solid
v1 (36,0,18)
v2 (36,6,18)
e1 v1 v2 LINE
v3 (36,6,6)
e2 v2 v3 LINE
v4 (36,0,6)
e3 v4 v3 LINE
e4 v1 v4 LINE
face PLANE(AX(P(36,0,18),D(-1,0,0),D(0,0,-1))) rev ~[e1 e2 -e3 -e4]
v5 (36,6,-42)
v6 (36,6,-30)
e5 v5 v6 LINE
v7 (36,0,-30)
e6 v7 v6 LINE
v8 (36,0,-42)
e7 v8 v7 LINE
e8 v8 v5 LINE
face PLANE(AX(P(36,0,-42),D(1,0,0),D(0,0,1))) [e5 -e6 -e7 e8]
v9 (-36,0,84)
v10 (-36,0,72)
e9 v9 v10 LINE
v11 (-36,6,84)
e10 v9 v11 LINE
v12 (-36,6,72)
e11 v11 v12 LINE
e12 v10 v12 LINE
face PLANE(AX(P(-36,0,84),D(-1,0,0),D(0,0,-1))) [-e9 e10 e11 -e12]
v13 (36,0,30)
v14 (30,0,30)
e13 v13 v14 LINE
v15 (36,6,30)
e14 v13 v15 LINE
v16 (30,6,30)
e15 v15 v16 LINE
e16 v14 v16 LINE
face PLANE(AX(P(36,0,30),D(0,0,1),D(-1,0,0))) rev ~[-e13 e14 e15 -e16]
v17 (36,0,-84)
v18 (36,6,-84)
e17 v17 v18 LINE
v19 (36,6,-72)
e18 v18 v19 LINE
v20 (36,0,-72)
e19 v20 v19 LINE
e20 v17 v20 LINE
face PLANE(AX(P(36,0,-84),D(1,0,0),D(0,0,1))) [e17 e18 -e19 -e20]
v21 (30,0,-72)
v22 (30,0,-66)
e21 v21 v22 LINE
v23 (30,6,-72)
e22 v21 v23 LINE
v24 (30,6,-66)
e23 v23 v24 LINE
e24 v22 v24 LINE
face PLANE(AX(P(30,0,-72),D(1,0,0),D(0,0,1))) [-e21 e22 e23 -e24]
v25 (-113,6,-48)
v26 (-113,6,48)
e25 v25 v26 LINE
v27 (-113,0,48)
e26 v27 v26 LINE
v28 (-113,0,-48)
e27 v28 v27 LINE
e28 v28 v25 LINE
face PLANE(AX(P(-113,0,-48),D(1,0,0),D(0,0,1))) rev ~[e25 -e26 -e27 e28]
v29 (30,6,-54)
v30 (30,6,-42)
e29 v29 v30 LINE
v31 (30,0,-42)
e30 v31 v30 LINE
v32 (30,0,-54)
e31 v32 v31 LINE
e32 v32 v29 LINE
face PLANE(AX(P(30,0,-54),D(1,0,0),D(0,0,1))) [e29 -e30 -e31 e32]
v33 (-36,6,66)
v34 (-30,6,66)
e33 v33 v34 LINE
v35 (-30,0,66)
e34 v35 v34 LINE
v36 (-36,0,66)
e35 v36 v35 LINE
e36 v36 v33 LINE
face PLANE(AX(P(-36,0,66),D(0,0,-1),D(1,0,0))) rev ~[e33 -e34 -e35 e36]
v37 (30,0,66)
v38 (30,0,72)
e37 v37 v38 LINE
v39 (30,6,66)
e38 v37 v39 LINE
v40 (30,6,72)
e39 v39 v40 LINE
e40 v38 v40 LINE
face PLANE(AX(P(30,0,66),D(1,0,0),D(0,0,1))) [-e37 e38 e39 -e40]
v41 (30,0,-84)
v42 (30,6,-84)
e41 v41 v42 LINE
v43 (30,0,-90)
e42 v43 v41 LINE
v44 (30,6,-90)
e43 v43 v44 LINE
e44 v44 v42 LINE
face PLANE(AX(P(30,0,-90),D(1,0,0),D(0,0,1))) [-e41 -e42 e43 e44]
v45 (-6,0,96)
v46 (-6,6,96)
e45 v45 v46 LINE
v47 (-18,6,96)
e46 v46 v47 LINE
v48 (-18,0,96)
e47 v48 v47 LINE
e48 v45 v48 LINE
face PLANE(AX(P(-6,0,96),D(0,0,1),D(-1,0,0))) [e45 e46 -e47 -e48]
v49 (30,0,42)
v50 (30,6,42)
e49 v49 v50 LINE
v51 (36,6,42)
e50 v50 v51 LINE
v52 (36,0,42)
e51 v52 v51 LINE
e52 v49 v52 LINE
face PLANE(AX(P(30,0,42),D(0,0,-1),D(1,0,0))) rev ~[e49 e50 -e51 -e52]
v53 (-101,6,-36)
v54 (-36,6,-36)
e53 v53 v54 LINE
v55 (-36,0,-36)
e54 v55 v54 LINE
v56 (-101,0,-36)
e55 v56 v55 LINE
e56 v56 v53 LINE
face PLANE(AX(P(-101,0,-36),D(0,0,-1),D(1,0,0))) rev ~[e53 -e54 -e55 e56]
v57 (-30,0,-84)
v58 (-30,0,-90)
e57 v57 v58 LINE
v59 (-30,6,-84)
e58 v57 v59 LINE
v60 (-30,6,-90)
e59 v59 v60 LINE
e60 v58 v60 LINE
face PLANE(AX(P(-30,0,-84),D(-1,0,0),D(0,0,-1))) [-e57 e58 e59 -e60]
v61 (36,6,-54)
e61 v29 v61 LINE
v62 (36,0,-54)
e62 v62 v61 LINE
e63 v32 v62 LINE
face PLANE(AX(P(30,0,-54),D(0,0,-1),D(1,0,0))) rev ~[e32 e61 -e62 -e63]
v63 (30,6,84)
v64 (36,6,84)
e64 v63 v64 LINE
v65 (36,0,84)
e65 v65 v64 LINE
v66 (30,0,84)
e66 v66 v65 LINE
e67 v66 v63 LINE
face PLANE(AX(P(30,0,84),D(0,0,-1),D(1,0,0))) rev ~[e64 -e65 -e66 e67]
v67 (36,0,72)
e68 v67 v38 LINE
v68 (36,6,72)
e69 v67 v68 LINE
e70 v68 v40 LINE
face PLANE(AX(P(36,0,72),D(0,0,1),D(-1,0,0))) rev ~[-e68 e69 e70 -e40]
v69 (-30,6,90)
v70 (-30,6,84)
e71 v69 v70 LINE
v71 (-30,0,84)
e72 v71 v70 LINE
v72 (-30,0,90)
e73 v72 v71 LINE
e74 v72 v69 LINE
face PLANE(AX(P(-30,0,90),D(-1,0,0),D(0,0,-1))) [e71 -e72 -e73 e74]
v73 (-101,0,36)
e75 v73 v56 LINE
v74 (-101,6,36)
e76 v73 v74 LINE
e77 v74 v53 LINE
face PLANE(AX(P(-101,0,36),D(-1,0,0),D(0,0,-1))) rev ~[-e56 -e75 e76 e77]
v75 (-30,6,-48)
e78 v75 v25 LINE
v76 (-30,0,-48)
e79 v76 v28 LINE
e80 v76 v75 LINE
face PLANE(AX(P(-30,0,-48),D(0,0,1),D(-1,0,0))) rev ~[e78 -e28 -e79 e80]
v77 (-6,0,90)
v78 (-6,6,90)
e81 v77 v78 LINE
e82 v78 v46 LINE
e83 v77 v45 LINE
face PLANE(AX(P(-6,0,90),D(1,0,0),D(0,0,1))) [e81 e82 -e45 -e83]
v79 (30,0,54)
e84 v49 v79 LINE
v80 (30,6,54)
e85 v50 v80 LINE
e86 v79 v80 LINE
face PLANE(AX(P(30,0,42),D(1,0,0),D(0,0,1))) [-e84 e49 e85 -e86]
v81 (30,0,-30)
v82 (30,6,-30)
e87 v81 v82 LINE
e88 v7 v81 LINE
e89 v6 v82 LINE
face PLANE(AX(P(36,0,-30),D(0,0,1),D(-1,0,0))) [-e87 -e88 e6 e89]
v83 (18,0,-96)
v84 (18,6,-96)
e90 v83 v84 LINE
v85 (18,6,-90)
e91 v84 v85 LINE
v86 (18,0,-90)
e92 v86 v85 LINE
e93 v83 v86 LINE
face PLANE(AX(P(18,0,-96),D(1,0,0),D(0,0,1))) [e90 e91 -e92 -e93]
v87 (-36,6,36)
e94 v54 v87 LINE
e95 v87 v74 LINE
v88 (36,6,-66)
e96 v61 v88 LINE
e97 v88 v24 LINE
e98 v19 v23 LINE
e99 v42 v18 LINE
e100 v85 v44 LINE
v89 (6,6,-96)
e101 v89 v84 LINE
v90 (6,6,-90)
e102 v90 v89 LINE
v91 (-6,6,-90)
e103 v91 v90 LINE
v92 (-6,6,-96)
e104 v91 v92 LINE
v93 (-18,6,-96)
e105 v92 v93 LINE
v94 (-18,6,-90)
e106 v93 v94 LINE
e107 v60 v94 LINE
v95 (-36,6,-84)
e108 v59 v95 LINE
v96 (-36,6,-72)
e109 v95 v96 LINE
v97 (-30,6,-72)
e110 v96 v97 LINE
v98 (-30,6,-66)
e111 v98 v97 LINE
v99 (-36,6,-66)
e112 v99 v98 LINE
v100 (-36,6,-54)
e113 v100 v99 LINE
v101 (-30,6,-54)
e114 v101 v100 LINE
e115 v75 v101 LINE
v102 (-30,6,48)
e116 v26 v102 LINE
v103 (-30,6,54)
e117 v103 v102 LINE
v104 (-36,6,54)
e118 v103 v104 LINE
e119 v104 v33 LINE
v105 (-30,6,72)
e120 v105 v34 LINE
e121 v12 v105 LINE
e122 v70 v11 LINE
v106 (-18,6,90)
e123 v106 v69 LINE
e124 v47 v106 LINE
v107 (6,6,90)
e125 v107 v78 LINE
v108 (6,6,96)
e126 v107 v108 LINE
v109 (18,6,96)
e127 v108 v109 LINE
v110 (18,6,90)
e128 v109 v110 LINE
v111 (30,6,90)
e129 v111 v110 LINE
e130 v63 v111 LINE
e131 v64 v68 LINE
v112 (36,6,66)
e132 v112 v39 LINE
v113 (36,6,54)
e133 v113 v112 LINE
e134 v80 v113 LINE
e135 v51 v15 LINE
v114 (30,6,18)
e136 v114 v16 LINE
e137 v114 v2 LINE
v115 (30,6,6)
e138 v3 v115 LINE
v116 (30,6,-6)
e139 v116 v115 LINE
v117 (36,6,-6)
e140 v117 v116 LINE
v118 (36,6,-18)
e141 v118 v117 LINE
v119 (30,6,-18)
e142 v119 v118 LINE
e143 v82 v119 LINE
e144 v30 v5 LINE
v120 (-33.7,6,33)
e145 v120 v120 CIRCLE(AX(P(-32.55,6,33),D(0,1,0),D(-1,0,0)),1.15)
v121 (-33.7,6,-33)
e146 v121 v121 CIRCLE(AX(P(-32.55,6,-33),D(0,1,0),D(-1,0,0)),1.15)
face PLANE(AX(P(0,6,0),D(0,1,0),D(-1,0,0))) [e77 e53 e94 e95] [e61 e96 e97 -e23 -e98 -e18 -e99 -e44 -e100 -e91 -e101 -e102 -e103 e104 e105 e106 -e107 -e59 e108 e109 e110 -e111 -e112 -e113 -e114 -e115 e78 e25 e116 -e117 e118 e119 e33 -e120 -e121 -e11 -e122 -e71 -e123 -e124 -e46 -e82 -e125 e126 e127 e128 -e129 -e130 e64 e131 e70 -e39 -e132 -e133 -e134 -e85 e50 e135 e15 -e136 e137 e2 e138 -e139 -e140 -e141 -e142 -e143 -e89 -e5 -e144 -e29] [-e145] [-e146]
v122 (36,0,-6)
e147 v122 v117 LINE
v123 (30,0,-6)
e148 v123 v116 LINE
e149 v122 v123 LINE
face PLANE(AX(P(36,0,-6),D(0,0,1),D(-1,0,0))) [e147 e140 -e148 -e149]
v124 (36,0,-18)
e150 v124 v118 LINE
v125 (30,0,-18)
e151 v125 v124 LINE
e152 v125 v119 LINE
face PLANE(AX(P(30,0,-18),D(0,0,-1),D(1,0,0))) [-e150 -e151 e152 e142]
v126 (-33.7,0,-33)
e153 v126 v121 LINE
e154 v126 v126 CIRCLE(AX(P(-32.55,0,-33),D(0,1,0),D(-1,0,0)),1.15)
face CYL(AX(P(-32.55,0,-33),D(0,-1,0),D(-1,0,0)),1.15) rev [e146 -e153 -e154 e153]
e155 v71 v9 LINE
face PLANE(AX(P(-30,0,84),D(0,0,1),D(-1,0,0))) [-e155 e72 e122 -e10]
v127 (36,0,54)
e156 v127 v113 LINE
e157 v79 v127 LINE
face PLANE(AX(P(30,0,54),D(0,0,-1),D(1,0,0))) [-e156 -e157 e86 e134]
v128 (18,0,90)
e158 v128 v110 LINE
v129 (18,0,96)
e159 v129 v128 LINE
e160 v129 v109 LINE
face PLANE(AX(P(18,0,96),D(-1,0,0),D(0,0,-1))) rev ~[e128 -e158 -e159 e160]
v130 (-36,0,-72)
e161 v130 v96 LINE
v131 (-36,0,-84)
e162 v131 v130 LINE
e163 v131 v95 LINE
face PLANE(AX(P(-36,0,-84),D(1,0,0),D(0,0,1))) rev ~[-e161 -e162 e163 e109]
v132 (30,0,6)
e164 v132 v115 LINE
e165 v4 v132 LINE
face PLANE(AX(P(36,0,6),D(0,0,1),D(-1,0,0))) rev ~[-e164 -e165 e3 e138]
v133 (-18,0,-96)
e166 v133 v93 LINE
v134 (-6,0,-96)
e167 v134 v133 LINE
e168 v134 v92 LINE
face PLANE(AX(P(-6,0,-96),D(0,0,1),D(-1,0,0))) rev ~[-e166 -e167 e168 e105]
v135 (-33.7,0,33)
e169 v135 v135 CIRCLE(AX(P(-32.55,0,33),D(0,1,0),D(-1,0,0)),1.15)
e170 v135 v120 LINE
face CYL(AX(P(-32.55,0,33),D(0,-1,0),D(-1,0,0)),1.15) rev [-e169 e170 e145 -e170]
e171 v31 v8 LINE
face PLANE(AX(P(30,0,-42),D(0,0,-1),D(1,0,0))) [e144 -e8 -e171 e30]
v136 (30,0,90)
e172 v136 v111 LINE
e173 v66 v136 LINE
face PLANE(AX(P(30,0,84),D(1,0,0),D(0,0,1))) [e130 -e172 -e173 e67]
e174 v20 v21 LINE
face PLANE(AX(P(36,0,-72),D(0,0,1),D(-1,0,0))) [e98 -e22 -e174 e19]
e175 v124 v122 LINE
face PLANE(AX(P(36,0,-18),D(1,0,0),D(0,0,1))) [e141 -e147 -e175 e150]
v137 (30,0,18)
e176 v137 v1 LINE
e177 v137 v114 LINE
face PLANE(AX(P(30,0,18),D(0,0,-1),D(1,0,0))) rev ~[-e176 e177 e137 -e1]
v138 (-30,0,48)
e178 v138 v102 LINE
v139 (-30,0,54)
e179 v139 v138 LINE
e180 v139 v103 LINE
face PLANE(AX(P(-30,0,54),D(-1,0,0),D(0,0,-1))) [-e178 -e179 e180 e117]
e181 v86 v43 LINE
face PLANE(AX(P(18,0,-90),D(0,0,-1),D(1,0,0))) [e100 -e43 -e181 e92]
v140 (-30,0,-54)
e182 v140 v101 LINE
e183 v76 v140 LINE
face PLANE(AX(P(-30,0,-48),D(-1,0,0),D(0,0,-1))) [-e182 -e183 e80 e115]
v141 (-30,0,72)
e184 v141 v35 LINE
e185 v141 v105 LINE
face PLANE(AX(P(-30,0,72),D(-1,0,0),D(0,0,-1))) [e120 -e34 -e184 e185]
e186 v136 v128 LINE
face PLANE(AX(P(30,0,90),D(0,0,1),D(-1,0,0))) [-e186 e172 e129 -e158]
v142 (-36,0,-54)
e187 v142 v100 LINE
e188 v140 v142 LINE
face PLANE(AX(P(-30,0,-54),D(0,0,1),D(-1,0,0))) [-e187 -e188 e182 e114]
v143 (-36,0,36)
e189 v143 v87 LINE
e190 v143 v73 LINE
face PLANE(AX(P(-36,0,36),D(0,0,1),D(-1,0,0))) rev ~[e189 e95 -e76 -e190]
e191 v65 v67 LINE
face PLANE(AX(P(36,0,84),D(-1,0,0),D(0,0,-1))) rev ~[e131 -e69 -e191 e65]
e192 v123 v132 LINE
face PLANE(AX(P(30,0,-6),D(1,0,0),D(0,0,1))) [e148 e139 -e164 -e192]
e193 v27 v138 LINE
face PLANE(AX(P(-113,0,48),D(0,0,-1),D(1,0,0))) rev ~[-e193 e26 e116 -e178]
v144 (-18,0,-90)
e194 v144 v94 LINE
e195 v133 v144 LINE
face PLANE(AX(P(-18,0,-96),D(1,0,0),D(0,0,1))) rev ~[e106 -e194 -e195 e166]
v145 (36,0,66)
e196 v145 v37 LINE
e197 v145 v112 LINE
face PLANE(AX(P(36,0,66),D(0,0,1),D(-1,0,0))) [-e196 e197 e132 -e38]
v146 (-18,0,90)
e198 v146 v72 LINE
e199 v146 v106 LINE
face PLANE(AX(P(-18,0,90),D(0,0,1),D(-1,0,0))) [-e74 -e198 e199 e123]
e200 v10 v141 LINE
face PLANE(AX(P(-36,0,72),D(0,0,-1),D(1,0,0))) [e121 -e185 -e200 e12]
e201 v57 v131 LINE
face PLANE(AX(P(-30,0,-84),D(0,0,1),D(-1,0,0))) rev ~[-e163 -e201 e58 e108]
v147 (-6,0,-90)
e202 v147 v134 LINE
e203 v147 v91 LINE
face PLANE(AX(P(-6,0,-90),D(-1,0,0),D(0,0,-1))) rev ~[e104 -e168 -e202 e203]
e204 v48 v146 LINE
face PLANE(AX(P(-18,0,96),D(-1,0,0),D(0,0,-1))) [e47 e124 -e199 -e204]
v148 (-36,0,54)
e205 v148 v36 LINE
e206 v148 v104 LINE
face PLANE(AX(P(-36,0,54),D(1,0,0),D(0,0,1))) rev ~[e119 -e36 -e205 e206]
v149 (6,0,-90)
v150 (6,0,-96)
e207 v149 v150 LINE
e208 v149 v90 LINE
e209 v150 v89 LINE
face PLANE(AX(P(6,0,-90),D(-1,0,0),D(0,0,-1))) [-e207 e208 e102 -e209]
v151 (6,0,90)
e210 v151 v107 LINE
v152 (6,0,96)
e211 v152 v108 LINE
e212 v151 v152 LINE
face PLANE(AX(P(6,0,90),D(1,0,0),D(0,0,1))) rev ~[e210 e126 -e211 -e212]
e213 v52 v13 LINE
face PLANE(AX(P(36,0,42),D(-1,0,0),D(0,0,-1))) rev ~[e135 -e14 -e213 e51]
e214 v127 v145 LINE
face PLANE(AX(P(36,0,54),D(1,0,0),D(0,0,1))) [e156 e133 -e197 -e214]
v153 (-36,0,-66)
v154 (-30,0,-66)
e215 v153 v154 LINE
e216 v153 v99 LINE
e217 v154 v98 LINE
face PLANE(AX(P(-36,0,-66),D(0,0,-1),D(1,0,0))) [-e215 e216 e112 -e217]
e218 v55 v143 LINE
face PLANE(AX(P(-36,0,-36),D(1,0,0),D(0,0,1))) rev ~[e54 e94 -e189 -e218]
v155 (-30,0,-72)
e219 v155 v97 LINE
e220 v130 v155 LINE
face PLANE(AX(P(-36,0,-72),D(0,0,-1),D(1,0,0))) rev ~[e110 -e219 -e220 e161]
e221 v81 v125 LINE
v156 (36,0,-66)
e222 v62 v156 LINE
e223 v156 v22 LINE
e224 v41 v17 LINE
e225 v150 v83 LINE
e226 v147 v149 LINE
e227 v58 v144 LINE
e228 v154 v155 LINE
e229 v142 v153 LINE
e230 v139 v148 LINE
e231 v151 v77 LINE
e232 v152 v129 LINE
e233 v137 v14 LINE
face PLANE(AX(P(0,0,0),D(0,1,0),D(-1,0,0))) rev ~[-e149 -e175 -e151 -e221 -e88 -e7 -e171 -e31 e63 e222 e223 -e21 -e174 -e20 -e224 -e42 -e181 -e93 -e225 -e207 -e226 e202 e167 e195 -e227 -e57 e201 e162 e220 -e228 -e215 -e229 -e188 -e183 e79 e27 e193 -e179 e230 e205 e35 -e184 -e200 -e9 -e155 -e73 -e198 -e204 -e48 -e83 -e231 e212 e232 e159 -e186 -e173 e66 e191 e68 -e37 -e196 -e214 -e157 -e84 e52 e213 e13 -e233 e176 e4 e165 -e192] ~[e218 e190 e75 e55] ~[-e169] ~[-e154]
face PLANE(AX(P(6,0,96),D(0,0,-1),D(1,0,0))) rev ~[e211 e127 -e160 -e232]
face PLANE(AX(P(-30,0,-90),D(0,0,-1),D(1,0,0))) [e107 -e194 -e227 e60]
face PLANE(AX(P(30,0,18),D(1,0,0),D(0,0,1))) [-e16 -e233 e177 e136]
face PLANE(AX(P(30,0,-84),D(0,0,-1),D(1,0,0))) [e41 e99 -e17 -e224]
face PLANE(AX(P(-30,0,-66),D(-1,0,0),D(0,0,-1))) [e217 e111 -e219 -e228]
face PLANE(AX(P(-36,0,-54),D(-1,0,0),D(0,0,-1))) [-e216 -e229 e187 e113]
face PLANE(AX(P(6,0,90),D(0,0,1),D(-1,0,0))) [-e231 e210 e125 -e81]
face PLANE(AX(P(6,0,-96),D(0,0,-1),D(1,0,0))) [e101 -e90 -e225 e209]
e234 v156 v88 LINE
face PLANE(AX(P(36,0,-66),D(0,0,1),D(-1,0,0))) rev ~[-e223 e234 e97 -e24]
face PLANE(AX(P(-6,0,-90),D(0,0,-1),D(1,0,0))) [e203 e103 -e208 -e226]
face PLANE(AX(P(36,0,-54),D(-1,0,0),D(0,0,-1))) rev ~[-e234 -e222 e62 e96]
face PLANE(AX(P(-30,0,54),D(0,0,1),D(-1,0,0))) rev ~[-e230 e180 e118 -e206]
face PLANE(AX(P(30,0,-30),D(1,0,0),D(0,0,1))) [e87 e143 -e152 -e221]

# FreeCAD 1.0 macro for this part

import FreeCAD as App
import Part
import Sketcher


def add_polygon(sketch, points):
    """Adds a closed chain of lines whose ends are joined by coincident constraints."""
    first, n = sketch.GeometryCount, len(points)
    for a, b in zip(points, points[1:] + points[:1]):
        sketch.addGeometry(Part.LineSegment(App.Vector(*a, 0), App.Vector(*b, 0)), False)
    for i in range(n):
        sketch.addConstraint(Sketcher.Constraint("Coincident", first + i, 2, first + (i + 1) % n, 1))

doc = App.newDocument("Part")
body = doc.addObject("PartDesign::Body", "Body")

sketch1 = body.newObject("Sketcher::SketchObject", "Sketch")
sketch1.AttachmentSupport = (doc.getObject("XZ_Plane"), [""])
sketch1.MapMode = "FlatFace"
add_polygon(sketch1, [(18, 90), (30, 90), (30, 84), (36, 84), (36, 72), (30, 72), (30, 66), (36, 66), (36, 54), (30, 54), (30, 42), (36, 42), (36, 30), (30, 30), (30, 18), (36, 18), (36, 6), (30, 6), (30, -6), (36, -6), (36, -18), (30, -18), (30, -30), (36, -30), (36, -42), (30, -42), (30, -54), (36, -54), (36, -66), (30, -66), (30, -72), (36, -72), (36, -84), (30, -84), (30, -90), (18, -90), (18, -96), (6, -96), (6, -90), (-6, -90), (-6, -96), (-18, -96), (-18, -90), (-30, -90), (-30, -84), (-36, -84), (-36, -72), (-30, -72), (-30, -66), (-36, -66), (-36, -54), (-30, -54), (-30, -48), (-113, -48), (-113, 48), (-30, 48), (-30, 54), (-36, 54), (-36, 66), (-30, 66), (-30, 72), (-36, 72), (-36, 84), (-30, 84), (-30, 90), (-18, 90), (-18, 96), (-6, 96), (-6, 90), (6, 90), (6, 96), (18, 96)])
add_polygon(sketch1, [(-101, -36), (-36, -36), (-36, 36), (-101, 36)])
sketch1.addGeometry(Part.Circle(App.Vector(-32.5, -33, 0), App.Vector(0, 0, 1), 1.1), False)
sketch1.addGeometry(Part.Circle(App.Vector(-32.5, 33, 0), App.Vector(0, 0, 1), 1.1), False)
sketch1.addConstraint([
    Sketcher.Constraint("Horizontal", 0),
    Sketcher.Constraint("Vertical", 1),
    Sketcher.Constraint("Horizontal", 2),
    Sketcher.Constraint("Vertical", 3),
    Sketcher.Constraint("Horizontal", 4),
    Sketcher.Constraint("Vertical", 5),
    Sketcher.Constraint("Horizontal", 6),
    Sketcher.Constraint("Vertical", 7),
    Sketcher.Constraint("Horizontal", 8),
    Sketcher.Constraint("Vertical", 9),
    Sketcher.Constraint("Horizontal", 10),
    Sketcher.Constraint("Vertical", 11),
    Sketcher.Constraint("Horizontal", 12),
    Sketcher.Constraint("Vertical", 13),
    Sketcher.Constraint("Horizontal", 14),
    Sketcher.Constraint("Vertical", 15),
    Sketcher.Constraint("Horizontal", 16),
    Sketcher.Constraint("Vertical", 17),
    Sketcher.Constraint("Horizontal", 18),
    Sketcher.Constraint("Vertical", 19),
    Sketcher.Constraint("Horizontal", 20),
    Sketcher.Constraint("Vertical", 21),
    Sketcher.Constraint("Horizontal", 22),
    Sketcher.Constraint("Vertical", 23),
    Sketcher.Constraint("Horizontal", 24),
    Sketcher.Constraint("Vertical", 25),
    Sketcher.Constraint("Horizontal", 26),
    Sketcher.Constraint("Vertical", 27),
    Sketcher.Constraint("Horizontal", 28),
    Sketcher.Constraint("Vertical", 29),
    Sketcher.Constraint("Horizontal", 30),
    Sketcher.Constraint("Vertical", 31),
    Sketcher.Constraint("Horizontal", 32),
    Sketcher.Constraint("Vertical", 33),
    Sketcher.Constraint("Horizontal", 34),
    Sketcher.Constraint("Vertical", 35),
    Sketcher.Constraint("Horizontal", 36),
    Sketcher.Constraint("Vertical", 37),
    Sketcher.Constraint("Horizontal", 38),
    Sketcher.Constraint("Vertical", 39),
    Sketcher.Constraint("Horizontal", 40),
    Sketcher.Constraint("Vertical", 41),
    Sketcher.Constraint("Horizontal", 42),
    Sketcher.Constraint("Vertical", 43),
    Sketcher.Constraint("Horizontal", 44),
    Sketcher.Constraint("Vertical", 45),
    Sketcher.Constraint("Horizontal", 46),
    Sketcher.Constraint("Vertical", 47),
    Sketcher.Constraint("Horizontal", 48),
    Sketcher.Constraint("Vertical", 49),
    Sketcher.Constraint("Horizontal", 50),
    Sketcher.Constraint("Vertical", 51),
    Sketcher.Constraint("Horizontal", 52),
    Sketcher.Constraint("Vertical", 53),
    Sketcher.Constraint("Horizontal", 54),
    Sketcher.Constraint("Vertical", 55),
    Sketcher.Constraint("Horizontal", 56),
    Sketcher.Constraint("Vertical", 57),
    Sketcher.Constraint("Horizontal", 58),
    Sketcher.Constraint("Vertical", 59),
    Sketcher.Constraint("Horizontal", 60),
    Sketcher.Constraint("Vertical", 61),
    Sketcher.Constraint("Horizontal", 62),
    Sketcher.Constraint("Vertical", 63),
    Sketcher.Constraint("Horizontal", 64),
    Sketcher.Constraint("Vertical", 65),
    Sketcher.Constraint("Horizontal", 66),
    Sketcher.Constraint("Vertical", 67),
    Sketcher.Constraint("Horizontal", 68),
    Sketcher.Constraint("Vertical", 69),
    Sketcher.Constraint("Horizontal", 70),
    Sketcher.Constraint("Vertical", 71),
    Sketcher.Constraint("Horizontal", 72),
    Sketcher.Constraint("Vertical", 73),
    Sketcher.Constraint("Horizontal", 74),
    Sketcher.Constraint("Vertical", 75),
    Sketcher.Constraint("Equal", 76, 77),
    Sketcher.Constraint("Symmetric", 0, 2, 42, 2, -1, 1),
    Sketcher.Constraint("Symmetric", 2, 2, 44, 2, -1, 1),
    Sketcher.Constraint("Symmetric", 4, 2, 46, 2, -1, 1),
    Sketcher.Constraint("Symmetric", 6, 2, 48, 2, -1, 1),
    Sketcher.Constraint("Symmetric", 8, 2, 50, 2, -1, 1),
    Sketcher.Constraint("Symmetric", 25, 2, 55, 2, -1, 1),
    Sketcher.Constraint("Symmetric", 27, 2, 57, 2, -1, 1),
    Sketcher.Constraint("Symmetric", 29, 2, 59, 2, -1, 1),
    Sketcher.Constraint("Symmetric", 31, 2, 61, 2, -1, 1),
    Sketcher.Constraint("Symmetric", 33, 2, 63, 2, -1, 1),
    Sketcher.Constraint("Symmetric", 35, 2, 65, 2, -1, 1),
    Sketcher.Constraint("Symmetric", 37, 2, 67, 2, -1, 1),
    Sketcher.Constraint("Symmetric", 39, 2, 69, 2, -1, 1),
    Sketcher.Constraint("Symmetric", 36, 2, 39, 2, -2),
    Sketcher.Constraint("Symmetric", 34, 2, 41, 2, -2),
    Sketcher.Constraint("Symmetric", 32, 2, 43, 2, -2),
    Sketcher.Constraint("Symmetric", 30, 2, 45, 2, -2),
    Sketcher.Constraint("Symmetric", 28, 2, 47, 2, -2),
    Sketcher.Constraint("Symmetric", 26, 2, 49, 2, -2),
    Sketcher.Constraint("Symmetric", 76, 3, 77, 3, -1),
    Sketcher.Constraint("Symmetric", 15, 2, 18, 2, -1),
    Sketcher.Constraint("Symmetric", 13, 2, 20, 2, -1),
    Sketcher.Constraint("Symmetric", 11, 2, 22, 2, -1),
    Sketcher.Constraint("Symmetric", 9, 2, 24, 2, -1),
    Sketcher.Constraint("Horizontal", 34, 2, 37, 2),
    Sketcher.Constraint("Vertical", 1, 2, 4, 2),
    Sketcher.Constraint("Vertical", 3, 2, 6, 2),
    Sketcher.Constraint("Vertical", 5, 2, 8, 2),
    Sketcher.Constraint("Vertical", 7, 2, 10, 2),
    Sketcher.Constraint("Vertical", 9, 2, 12, 2),
    Sketcher.Constraint("Vertical", 11, 2, 14, 2),
    Sketcher.Constraint("Vertical", 13, 2, 16, 2),
    Sketcher.Constraint("Vertical", 35, 2, 70, 2),
    Sketcher.Constraint("Vertical", 61, 2, 72, 2),
    Sketcher.Constraint("Equal", 34, 36),
    Sketcher.Constraint("Equal", 36, 38),
    Sketcher.Constraint("Equal", 62, 1),
    Sketcher.Constraint("Equal", 70, 3),
    Sketcher.Constraint("Equal", 1, 5),
    Sketcher.Constraint("Equal", 3, 7),
    Sketcher.Constraint("Equal", 7, 9),
    Sketcher.Constraint("Equal", 9, 11),
    Sketcher.Constraint("Equal", 11, 13),
    Sketcher.Constraint("Equal", 13, 15),
    Sketcher.Constraint("Equal", 15, 17),
    Sketcher.Constraint("Equal", 33, 35),
    Sketcher.Constraint("Equal", 47, 51),
    Sketcher.Constraint("Equal", 51, 55),
    Sketcher.Constraint("Diameter", 76, 2.3),
    Sketcher.Constraint("DistanceX", 0, 1, 0, 2, 12.0),
    Sketcher.Constraint("DistanceX", 2, 1, 2, 2, 6.0),
    Sketcher.Constraint("DistanceX", 72, 1, 72, 2, 65.0),
    Sketcher.Constraint("DistanceX", 52, 2, 52, 1, 83.0),
    Sketcher.Constraint("DistanceY", 73, 1, 73, 2, 72.0),
    Sketcher.Constraint("DistanceY", 76, 3, -1, 1, 33.0),
    Sketcher.Constraint("DistanceY", 72, 2, -1, 1, 36.0),
    Sketcher.Constraint("DistanceX", 76, 3, -1, 1, 32.55),
])
pad1 = body.newObject("PartDesign::Pad", "Pad")
pad1.Profile = sketch1
pad1.Length = 6
pad1.Reversed = True

doc.recompute()
